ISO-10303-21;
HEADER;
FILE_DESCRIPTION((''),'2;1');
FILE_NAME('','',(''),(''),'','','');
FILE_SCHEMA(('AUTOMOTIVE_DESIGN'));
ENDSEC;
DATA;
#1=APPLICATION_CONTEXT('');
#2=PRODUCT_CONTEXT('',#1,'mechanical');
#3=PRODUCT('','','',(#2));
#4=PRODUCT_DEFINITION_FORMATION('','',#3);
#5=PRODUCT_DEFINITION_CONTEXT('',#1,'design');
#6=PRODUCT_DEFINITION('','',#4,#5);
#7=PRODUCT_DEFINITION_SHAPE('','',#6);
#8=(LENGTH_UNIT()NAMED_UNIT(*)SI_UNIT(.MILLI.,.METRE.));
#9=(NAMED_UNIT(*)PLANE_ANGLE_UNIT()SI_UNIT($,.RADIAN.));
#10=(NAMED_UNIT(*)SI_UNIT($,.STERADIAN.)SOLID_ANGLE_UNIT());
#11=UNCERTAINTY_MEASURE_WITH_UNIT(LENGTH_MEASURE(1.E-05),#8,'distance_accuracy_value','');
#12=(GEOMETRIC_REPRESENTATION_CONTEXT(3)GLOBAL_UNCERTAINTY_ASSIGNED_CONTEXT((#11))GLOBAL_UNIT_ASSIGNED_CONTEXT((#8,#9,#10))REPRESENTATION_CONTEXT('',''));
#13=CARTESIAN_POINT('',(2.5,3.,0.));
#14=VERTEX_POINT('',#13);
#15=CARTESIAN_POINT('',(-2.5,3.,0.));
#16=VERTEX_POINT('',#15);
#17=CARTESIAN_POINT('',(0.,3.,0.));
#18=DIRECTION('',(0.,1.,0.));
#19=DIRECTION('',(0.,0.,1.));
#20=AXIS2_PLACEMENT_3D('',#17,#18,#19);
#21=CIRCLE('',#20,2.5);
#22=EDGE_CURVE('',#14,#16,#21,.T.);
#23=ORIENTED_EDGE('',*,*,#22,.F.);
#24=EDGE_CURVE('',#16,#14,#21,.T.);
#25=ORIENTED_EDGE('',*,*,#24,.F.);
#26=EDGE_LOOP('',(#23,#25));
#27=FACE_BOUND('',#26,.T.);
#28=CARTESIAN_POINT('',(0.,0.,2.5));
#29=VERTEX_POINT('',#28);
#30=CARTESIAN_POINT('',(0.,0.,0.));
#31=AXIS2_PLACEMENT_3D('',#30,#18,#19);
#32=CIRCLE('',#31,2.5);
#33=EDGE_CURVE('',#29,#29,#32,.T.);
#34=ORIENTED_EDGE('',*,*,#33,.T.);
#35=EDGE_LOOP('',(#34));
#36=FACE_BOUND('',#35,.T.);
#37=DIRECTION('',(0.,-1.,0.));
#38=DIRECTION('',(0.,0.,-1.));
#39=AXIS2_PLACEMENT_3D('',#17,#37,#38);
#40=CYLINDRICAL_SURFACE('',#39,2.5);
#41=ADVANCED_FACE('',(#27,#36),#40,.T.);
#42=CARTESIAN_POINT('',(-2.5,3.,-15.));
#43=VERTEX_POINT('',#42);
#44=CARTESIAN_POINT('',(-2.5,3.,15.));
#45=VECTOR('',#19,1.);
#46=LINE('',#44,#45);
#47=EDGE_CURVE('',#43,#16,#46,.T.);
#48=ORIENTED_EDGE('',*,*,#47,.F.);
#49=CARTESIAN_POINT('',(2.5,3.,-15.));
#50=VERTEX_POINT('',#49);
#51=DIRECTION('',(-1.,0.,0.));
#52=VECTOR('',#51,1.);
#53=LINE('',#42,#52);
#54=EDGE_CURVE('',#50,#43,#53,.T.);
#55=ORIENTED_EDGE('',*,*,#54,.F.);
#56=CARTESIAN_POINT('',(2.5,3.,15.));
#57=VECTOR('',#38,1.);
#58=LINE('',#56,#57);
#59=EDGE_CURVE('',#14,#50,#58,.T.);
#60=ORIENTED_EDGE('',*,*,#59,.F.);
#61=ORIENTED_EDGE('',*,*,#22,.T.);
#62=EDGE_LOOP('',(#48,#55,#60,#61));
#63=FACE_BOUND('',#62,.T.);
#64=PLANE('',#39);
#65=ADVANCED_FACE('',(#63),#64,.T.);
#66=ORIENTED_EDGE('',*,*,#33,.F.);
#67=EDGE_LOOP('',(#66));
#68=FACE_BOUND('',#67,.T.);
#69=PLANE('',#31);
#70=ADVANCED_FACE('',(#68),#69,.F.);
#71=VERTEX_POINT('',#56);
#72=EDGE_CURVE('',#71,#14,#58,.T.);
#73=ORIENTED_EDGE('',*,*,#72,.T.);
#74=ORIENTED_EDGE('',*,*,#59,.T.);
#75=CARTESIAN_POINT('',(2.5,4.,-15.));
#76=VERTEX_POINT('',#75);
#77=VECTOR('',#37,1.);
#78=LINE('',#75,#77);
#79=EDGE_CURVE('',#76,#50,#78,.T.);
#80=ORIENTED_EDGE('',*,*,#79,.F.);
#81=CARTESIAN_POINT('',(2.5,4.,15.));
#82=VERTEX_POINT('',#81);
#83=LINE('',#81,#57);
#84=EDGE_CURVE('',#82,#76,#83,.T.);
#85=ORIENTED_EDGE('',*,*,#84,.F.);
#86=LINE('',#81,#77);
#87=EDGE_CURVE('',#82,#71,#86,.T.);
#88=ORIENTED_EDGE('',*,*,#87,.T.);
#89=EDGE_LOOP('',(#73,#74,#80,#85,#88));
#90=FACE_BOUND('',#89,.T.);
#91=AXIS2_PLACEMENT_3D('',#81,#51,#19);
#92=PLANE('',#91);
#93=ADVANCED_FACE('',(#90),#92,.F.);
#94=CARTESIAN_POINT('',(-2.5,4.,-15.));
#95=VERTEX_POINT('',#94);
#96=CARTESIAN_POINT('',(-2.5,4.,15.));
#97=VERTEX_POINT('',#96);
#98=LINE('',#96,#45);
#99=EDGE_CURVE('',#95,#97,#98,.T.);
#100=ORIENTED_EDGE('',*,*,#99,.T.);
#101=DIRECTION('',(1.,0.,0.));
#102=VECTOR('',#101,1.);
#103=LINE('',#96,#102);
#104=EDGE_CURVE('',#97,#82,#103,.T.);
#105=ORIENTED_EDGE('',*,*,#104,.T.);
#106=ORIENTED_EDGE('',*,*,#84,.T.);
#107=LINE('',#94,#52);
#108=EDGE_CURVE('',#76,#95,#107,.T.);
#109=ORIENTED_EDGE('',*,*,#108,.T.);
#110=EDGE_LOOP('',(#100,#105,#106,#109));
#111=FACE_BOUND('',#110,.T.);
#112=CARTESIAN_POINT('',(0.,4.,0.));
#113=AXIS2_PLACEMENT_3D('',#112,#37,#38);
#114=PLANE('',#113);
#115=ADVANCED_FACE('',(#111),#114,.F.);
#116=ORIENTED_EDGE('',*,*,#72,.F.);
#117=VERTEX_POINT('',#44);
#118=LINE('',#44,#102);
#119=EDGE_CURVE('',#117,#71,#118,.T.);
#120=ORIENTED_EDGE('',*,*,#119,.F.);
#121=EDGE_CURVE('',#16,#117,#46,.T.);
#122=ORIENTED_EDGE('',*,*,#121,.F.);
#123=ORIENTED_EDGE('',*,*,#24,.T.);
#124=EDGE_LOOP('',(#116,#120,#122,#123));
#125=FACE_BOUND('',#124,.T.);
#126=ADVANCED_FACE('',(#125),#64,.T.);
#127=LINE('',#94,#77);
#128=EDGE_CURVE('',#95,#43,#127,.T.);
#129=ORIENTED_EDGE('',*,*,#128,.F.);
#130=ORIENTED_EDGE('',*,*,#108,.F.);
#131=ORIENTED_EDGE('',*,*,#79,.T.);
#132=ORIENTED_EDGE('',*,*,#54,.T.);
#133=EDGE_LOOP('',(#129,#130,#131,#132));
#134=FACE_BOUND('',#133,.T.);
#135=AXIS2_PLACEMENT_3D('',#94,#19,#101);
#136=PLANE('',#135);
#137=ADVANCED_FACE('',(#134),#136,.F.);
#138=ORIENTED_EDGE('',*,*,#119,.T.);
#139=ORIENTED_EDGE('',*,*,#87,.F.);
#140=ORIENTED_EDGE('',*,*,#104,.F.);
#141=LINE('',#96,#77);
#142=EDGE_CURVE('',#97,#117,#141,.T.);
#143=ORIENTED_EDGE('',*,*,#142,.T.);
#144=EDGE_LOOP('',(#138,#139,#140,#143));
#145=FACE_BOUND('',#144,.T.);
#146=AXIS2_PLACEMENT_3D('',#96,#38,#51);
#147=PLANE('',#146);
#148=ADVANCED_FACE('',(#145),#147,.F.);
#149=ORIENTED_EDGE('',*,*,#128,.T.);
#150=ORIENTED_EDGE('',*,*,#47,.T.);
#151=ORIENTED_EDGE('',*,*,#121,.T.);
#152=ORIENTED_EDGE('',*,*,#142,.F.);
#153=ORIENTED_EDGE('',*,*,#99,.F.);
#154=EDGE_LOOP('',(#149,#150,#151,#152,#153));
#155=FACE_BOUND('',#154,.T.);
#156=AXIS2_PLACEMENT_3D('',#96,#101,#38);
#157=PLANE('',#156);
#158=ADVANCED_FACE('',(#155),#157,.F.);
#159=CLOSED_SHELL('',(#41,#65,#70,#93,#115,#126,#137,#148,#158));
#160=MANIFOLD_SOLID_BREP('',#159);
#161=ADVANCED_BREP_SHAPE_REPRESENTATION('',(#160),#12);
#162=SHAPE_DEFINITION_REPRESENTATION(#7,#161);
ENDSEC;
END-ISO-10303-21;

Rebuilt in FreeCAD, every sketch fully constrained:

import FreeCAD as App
import Part
import Sketcher
from FreeCAD import Vector


def add_polygon(sketch, points):
    """Adds a closed chain of lines whose ends are joined by coincident constraints."""
    first, n = sketch.GeometryCount, len(points)
    for a, b in zip(points, points[1:] + points[:1]):
        sketch.addGeometry(Part.LineSegment(App.Vector(*a, 0), App.Vector(*b, 0)), False)
    for i in range(n):
        sketch.addConstraint(Sketcher.Constraint("Coincident", first + i, 2, first + (i + 1) % n, 1))

doc = App.newDocument("Part")
body = doc.addObject("PartDesign::Body", "Body")

# Sketch on XZ plane
sketch1 = body.newObject("Sketcher::SketchObject", "Sketch")
sketch1.AttachmentSupport = (doc.getObject("XZ_Plane"), [""])
sketch1.MapMode = "FlatFace"
sketch1.addGeometry(Part.Circle(Vector(0, 0, 0), Vector(0, 0, 1), 2.5), False)
sketch1.addConstraint([
    Sketcher.Constraint("Coincident", 0, 3, -1, 1),
    Sketcher.Constraint("Diameter", 0, 5.0),
])
pad1 = body.newObject("PartDesign::Pad", "Pad")
pad1.Profile = sketch1
pad1.Length = 3
pad1.Reversed = True

# Sketch on XZ plane
sketch2 = body.newObject("Sketcher::SketchObject", "Sketch001")
sketch2.AttachmentSupport = (doc.getObject("XZ_Plane"), [""])
sketch2.MapMode = "FlatFace"
sketch2.AttachmentOffset = App.Placement(Vector(0, 0, -3), App.Rotation())
add_polygon(sketch2, [(-2, -15), (-2, 15), (2, 15), (2, -15)])  # lines 0-3
sketch2.addConstraint([
    Sketcher.Constraint("Vertical", 0),
    Sketcher.Constraint("Horizontal", 1),
    Sketcher.Constraint("Vertical", 2),
    Sketcher.Constraint("Horizontal", 3),
    Sketcher.Constraint("Symmetric", 0, 2, 2, 2, -1, 1),
    Sketcher.Constraint("DistanceX", 1, 1, 1, 2, 5.0),
    Sketcher.Constraint("DistanceY", 0, 1, 0, 2, 30.0),
])
pad2 = body.newObject("PartDesign::Pad", "Pad001")
pad2.Profile = sketch2
pad2.Length = 1
pad2.Reversed = True

doc.recompute()
